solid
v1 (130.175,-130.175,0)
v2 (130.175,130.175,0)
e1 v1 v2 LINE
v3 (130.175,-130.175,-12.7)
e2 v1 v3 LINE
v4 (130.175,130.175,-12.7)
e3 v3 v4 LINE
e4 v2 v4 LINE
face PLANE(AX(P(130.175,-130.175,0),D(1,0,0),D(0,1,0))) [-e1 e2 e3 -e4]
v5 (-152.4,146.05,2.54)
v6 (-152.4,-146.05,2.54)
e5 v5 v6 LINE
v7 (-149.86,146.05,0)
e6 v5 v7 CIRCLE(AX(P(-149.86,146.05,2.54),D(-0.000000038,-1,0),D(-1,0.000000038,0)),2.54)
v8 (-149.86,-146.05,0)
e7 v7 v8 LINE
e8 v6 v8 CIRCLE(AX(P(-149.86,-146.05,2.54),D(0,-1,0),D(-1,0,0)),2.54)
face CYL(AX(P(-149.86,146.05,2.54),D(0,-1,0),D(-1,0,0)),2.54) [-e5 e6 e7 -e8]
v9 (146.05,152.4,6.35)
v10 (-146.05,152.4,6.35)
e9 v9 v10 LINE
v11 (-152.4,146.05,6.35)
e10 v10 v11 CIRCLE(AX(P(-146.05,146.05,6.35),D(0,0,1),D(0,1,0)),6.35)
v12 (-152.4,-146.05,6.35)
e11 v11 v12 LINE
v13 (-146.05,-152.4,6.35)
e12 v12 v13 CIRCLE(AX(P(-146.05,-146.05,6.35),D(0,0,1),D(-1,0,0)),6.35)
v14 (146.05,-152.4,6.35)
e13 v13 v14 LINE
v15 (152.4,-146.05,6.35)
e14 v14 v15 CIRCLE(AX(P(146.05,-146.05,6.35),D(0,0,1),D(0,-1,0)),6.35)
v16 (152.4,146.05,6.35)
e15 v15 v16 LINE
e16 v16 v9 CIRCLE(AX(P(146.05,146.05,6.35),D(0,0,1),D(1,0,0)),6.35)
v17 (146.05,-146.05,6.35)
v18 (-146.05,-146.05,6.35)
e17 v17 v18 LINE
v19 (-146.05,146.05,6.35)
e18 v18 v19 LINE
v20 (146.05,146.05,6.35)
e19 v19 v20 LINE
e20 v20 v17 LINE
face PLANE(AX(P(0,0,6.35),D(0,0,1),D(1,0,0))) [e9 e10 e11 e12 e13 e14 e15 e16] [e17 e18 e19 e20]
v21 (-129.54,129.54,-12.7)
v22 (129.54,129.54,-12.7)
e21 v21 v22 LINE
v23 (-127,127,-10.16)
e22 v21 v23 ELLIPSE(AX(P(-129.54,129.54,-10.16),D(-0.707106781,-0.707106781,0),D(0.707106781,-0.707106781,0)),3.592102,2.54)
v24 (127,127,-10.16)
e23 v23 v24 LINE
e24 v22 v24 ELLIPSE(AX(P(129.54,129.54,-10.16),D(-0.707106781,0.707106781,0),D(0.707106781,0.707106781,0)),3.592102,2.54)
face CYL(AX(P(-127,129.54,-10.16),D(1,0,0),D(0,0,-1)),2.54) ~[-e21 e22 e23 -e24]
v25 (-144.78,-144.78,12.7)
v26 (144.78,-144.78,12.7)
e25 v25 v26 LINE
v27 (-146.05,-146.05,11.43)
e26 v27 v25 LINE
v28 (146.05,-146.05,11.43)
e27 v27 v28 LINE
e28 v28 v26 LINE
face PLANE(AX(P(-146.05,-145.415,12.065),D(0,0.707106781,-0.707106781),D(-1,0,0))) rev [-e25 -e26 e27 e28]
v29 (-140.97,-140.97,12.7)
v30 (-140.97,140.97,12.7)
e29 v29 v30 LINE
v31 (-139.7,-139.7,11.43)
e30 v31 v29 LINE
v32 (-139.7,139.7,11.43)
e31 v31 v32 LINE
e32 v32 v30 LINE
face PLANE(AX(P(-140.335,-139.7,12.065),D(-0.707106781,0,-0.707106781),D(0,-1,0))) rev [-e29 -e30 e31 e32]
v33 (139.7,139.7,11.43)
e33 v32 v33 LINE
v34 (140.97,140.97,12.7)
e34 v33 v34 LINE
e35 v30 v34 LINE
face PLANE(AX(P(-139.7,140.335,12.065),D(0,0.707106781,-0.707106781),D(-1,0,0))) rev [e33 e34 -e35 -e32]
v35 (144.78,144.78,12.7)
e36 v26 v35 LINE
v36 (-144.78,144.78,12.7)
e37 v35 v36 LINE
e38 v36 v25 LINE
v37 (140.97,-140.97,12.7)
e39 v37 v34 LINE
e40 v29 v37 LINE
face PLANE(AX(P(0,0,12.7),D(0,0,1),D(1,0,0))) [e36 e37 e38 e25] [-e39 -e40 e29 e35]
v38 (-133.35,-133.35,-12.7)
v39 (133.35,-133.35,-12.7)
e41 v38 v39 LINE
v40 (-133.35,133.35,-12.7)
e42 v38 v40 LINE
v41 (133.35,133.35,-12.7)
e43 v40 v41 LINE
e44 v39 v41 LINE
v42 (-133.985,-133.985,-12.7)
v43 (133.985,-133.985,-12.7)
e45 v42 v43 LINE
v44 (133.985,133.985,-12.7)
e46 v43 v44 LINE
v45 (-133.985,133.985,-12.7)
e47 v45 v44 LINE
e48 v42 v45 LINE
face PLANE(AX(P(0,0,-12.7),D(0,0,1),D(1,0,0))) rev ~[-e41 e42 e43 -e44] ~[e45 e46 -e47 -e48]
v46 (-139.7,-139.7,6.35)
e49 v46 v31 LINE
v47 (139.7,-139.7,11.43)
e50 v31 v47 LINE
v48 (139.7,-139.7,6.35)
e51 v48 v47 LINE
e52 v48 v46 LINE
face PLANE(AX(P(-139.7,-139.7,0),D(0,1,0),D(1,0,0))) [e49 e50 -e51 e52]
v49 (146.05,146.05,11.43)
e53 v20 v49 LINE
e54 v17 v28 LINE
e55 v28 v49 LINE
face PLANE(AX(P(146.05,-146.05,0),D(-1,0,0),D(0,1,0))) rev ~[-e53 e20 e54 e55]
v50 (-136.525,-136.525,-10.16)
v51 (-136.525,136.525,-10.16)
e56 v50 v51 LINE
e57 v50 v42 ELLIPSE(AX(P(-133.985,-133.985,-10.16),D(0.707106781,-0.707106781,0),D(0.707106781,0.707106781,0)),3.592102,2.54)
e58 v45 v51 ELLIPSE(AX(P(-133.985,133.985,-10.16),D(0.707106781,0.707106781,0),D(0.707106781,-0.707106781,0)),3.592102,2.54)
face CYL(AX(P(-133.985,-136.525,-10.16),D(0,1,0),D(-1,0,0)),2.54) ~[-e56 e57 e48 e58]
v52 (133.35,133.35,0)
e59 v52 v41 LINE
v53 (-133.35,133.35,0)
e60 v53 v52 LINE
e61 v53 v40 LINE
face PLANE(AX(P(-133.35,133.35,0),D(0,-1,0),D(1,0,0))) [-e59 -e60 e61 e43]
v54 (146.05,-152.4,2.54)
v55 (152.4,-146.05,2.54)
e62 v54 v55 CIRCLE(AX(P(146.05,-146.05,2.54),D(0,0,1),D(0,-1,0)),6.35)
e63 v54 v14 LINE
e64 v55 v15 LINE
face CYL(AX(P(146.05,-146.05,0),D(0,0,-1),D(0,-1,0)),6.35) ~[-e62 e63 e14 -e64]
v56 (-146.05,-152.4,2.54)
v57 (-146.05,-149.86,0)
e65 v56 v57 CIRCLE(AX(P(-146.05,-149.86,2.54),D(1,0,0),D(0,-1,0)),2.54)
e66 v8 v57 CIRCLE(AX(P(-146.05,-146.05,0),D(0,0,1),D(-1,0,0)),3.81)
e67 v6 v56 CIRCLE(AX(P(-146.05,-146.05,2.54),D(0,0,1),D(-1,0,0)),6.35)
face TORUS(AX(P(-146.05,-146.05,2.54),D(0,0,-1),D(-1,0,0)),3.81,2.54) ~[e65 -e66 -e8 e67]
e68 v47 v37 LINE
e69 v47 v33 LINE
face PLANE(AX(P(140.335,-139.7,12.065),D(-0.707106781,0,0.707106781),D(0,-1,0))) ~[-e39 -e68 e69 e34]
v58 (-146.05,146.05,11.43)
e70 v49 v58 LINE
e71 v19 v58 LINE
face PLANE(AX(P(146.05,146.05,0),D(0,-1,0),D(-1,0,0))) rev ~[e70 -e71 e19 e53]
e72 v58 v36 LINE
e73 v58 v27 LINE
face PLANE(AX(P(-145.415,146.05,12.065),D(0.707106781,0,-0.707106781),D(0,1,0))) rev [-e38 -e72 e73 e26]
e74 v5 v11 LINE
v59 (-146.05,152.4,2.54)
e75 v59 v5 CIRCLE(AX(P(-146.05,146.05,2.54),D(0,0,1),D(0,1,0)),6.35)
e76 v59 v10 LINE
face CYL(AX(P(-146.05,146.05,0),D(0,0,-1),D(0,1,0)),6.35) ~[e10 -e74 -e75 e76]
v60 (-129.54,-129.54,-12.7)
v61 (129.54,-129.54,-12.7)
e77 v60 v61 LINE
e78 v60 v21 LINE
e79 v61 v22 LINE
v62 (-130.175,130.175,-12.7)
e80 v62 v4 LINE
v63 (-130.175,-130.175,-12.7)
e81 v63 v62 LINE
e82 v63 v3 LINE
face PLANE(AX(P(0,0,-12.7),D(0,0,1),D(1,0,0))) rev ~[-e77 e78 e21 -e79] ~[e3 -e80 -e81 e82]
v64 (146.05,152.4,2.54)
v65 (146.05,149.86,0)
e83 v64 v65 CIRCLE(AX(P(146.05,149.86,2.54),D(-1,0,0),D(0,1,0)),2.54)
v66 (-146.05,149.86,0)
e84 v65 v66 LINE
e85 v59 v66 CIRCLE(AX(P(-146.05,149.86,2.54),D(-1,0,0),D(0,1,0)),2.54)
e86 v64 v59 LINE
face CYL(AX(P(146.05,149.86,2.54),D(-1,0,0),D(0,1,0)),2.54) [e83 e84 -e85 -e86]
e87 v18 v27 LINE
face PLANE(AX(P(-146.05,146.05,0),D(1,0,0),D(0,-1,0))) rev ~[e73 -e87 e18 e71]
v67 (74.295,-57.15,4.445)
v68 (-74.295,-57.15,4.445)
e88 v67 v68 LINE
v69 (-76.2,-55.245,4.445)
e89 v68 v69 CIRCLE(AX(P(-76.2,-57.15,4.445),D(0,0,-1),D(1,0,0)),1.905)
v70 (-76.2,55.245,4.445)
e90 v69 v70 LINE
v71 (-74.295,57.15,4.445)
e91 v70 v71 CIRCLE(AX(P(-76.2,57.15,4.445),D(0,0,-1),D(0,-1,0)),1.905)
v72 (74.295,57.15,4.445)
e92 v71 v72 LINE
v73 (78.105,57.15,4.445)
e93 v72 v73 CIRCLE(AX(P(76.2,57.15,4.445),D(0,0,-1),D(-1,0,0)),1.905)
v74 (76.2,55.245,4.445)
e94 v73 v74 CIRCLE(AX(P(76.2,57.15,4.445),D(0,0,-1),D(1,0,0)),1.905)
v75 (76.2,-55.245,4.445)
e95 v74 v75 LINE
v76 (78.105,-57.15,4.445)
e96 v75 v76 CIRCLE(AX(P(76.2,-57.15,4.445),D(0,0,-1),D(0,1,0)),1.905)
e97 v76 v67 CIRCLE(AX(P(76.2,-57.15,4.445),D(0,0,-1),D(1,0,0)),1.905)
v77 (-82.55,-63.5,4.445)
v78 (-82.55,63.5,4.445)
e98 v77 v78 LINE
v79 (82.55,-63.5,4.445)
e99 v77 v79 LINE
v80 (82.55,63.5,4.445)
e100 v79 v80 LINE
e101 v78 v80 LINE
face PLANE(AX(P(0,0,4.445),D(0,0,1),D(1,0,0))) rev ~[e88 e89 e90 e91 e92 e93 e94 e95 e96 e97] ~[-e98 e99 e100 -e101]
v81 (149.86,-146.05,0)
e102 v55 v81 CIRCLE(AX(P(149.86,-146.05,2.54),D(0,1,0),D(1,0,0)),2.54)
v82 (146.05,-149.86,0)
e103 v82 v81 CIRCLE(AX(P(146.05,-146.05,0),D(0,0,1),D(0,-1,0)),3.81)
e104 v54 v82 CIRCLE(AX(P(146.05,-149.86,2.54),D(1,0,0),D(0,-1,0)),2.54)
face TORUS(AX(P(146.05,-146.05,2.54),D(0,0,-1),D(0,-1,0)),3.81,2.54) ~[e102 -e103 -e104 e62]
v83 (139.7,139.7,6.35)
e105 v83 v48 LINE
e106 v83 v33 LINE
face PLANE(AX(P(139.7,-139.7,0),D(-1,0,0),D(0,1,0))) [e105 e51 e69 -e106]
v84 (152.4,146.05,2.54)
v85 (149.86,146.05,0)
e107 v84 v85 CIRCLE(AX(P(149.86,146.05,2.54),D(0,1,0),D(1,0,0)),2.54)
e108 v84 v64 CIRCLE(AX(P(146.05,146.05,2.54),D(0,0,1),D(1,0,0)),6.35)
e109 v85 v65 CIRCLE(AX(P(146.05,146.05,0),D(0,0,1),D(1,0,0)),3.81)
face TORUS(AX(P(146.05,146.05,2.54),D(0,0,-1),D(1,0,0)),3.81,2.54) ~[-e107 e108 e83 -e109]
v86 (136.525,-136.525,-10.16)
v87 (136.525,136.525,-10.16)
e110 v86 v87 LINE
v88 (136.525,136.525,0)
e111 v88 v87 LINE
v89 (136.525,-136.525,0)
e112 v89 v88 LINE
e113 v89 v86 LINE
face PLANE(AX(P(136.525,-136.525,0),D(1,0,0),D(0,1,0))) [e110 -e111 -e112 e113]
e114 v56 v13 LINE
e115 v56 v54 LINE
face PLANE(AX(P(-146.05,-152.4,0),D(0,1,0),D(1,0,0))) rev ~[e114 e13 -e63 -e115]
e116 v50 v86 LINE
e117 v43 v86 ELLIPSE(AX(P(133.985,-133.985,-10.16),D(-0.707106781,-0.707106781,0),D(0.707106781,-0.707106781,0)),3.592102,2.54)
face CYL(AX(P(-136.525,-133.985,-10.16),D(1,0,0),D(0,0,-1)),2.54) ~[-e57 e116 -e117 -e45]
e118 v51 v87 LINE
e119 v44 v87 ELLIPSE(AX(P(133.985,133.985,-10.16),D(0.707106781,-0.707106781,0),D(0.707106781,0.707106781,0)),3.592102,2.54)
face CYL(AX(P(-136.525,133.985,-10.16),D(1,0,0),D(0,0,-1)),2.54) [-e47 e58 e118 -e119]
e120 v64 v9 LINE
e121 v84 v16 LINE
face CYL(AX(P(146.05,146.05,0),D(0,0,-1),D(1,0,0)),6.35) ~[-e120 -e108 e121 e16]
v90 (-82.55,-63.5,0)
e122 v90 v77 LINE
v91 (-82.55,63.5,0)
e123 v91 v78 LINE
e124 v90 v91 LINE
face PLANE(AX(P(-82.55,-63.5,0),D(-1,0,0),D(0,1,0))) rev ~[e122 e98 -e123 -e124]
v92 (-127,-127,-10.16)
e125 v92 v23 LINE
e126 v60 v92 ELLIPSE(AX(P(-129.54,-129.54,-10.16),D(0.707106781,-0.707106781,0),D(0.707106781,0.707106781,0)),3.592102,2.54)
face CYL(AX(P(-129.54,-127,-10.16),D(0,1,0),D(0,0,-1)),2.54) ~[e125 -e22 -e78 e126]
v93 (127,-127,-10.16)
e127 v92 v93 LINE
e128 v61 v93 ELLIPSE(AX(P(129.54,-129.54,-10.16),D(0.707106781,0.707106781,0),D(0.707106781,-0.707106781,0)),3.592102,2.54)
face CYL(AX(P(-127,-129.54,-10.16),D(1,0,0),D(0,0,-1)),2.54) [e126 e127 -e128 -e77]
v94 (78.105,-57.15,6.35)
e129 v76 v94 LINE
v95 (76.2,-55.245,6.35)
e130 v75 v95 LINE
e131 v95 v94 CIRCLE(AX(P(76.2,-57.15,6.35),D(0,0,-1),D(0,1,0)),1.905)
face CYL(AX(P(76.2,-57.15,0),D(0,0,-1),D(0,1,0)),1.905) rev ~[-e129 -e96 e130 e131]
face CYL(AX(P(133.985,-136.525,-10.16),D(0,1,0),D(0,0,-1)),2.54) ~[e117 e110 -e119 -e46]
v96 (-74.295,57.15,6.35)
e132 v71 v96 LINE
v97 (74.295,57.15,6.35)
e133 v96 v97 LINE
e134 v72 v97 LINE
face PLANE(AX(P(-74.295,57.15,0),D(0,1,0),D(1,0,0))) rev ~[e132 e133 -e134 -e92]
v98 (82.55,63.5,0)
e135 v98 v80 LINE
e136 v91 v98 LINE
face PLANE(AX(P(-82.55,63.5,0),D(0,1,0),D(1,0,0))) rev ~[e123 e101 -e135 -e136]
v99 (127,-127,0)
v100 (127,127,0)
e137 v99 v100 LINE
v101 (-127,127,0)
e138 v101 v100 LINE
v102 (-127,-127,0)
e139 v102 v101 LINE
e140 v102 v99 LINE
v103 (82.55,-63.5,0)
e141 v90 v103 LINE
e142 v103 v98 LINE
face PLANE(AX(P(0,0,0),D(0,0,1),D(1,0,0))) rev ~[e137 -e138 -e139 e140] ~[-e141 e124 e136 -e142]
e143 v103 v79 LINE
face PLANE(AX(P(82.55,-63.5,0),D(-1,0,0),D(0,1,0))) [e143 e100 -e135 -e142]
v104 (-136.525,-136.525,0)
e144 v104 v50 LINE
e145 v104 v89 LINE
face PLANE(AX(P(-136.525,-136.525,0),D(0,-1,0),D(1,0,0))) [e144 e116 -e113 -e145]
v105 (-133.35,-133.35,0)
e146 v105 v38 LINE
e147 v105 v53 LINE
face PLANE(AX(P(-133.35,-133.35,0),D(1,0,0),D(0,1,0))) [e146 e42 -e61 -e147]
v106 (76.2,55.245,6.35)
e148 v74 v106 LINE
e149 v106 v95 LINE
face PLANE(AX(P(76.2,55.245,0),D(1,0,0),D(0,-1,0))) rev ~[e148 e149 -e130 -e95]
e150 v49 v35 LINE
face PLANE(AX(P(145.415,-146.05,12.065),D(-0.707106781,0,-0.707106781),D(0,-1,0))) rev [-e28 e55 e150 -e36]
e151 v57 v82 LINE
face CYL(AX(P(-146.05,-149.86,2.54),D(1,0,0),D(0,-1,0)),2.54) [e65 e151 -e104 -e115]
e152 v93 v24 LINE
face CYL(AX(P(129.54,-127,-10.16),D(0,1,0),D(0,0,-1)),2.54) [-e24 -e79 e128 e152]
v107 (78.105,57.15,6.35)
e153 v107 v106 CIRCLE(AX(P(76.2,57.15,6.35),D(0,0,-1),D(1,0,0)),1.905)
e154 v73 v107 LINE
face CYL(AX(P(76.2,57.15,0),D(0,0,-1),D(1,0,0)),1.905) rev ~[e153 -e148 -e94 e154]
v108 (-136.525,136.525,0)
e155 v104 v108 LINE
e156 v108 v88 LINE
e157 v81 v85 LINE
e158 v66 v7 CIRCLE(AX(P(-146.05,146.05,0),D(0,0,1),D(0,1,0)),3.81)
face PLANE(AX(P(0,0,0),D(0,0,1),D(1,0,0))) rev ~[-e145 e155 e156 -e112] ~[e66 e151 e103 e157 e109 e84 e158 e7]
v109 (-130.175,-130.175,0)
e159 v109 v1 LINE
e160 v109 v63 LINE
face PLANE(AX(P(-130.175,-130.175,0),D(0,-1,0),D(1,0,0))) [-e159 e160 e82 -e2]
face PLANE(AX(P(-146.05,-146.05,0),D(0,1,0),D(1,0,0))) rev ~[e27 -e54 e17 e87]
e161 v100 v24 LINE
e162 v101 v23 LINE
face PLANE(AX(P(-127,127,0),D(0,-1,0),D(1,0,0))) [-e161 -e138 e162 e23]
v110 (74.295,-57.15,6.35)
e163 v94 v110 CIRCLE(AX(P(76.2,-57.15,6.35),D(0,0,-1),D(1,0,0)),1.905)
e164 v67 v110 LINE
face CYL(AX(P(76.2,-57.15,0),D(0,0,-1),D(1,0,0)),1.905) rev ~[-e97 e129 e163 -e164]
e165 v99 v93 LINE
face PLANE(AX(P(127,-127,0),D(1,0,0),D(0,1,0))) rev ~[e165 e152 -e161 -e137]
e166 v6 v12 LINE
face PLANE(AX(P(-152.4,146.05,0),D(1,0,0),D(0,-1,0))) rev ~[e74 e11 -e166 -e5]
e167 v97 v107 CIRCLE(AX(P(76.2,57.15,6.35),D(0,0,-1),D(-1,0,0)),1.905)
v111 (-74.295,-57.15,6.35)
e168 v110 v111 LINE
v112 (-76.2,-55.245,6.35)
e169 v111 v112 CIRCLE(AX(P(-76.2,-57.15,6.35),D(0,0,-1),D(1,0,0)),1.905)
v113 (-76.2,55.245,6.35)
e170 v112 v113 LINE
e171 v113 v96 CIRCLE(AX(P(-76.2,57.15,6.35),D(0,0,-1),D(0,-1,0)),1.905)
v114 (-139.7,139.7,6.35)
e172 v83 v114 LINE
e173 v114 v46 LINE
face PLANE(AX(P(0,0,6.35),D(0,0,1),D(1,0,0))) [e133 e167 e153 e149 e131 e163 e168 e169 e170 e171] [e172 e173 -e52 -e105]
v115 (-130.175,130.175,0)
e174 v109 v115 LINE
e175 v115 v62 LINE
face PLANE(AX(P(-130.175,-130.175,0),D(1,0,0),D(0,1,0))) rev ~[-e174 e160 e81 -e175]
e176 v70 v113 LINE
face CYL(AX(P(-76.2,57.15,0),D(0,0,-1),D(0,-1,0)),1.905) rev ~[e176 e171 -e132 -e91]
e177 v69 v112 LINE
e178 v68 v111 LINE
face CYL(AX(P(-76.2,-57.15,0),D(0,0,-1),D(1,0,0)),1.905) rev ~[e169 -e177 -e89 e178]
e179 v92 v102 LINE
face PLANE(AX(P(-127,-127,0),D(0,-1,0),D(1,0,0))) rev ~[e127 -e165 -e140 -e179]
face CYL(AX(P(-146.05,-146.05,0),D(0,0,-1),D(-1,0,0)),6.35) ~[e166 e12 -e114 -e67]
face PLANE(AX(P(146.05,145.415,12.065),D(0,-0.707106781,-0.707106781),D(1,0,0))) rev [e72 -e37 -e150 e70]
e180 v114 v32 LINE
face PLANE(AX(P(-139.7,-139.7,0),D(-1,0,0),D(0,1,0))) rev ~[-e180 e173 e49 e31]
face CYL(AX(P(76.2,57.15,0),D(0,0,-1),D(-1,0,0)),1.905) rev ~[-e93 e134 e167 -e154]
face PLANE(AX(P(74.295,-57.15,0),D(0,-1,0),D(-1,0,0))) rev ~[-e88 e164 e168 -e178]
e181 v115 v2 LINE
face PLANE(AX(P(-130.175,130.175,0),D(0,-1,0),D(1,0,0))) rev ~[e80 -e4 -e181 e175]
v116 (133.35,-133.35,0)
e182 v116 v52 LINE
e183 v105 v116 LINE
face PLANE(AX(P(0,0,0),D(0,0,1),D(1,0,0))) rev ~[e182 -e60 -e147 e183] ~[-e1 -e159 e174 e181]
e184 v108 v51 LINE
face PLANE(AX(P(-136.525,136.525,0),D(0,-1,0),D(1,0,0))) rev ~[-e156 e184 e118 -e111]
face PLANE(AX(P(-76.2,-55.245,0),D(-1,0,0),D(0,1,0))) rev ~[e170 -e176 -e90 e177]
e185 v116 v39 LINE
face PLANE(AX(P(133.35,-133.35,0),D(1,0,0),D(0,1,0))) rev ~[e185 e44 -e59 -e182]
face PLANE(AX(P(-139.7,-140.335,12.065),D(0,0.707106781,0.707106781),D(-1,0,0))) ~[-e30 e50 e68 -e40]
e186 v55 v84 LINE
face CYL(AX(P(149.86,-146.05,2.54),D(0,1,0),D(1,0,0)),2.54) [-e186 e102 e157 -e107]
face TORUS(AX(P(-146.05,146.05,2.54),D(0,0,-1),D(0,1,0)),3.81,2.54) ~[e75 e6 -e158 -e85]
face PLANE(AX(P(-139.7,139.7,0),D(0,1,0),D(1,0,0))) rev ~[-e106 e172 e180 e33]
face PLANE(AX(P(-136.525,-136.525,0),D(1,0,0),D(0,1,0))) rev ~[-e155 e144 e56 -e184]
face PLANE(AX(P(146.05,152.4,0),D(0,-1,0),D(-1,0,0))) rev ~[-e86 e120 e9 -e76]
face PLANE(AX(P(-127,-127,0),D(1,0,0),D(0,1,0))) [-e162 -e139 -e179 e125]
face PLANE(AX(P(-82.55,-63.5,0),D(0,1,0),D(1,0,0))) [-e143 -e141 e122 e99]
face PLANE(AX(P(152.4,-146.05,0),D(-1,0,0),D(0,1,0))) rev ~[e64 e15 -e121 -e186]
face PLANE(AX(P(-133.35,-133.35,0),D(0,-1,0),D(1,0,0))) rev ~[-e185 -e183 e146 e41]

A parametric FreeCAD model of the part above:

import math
import FreeCAD as App
import Part
import Sketcher

V = App.Vector
Q = App.Units.Quantity


def edges_at(feature, points):
    """Names of the edges that pass closest to the given points."""
    edges = feature.Shape.Edges
    near = lambda p: min(range(len(edges)), key=lambda i: edges[i].distToShape(Part.Vertex(*p))[0])
    return sorted({f"Edge{near(p) + 1}" for p in points})

doc = App.newDocument("Part")
body = doc.addObject("PartDesign::Body", "Body")

# Sketch on XY plane
sketch1 = body.newObject("Sketcher::SketchObject", "Sketch")
sketch1.AttachmentSupport = (doc.getObject("XY_Plane"), [""])
sketch1.MapMode = "FlatFace"
sketch1.addGeometry([
    Part.LineSegment(V(-146.05, -152.4, 0), V(146.05, -152.4, 0)),  # 0
    Part.ArcOfCircle(Part.Circle(V(146.05, -146.05, 0), V(0, 0, 1), 6.35), math.radians(-90), math.radians(0)),  # 1
    Part.LineSegment(V(152.4, -146.05, 0), V(152.4, 146.05, 0)),  # 2
    Part.ArcOfCircle(Part.Circle(V(146.05, 146.05, 0), V(0, 0, 1), 6.35), math.radians(0), math.radians(90)),  # 3
    Part.LineSegment(V(146.05, 152.4, 0), V(-146.05, 152.4, 0)),  # 4
    Part.ArcOfCircle(Part.Circle(V(-146.05, 146.05, 0), V(0, 0, 1), 6.35), math.radians(90), math.radians(179.999998)),  # 5
    Part.LineSegment(V(-152.4, 146.05, 0), V(-152.4, -146.05, 0)),  # 6
    Part.ArcOfCircle(Part.Circle(V(-146.05, -146.05, 0), V(0, 0, 1), 6.35), math.radians(180), math.radians(270)),  # 7
    Part.LineSegment(V(127, -127, 0), V(-127, -127, 0)),  # 8
    Part.LineSegment(V(-127, -127, 0), V(-127, 127, 0)),  # 9
    Part.LineSegment(V(-127, 127, 0), V(127, 127, 0)),  # 10
    Part.LineSegment(V(127, 127, 0), V(127, -127, 0)),  # 11
], False)
sketch1.addConstraint([
    Sketcher.Constraint("Tangent", 0, 2, 1, 1),
    Sketcher.Constraint("Tangent", 1, 2, 2, 1),
    Sketcher.Constraint("Tangent", 2, 2, 3, 1),
    Sketcher.Constraint("Tangent", 3, 2, 4, 1),
    Sketcher.Constraint("Tangent", 4, 2, 5, 1),
    Sketcher.Constraint("Tangent", 5, 2, 6, 1),
    Sketcher.Constraint("Tangent", 6, 2, 7, 1),
    Sketcher.Constraint("Tangent", 7, 2, 0, 1),
    Sketcher.Constraint("Coincident", 8, 2, 9, 1),
    Sketcher.Constraint("Coincident", 9, 2, 10, 1),
    Sketcher.Constraint("Coincident", 10, 2, 11, 1),
    Sketcher.Constraint("Coincident", 11, 2, 8, 1),
    Sketcher.Constraint("Horizontal", 0),
    Sketcher.Constraint("Vertical", 2),
    Sketcher.Constraint("Horizontal", 4),
    Sketcher.Constraint("Vertical", 6),
    Sketcher.Constraint("Horizontal", 8),
    Sketcher.Constraint("Vertical", 9),
    Sketcher.Constraint("Horizontal", 10),
    Sketcher.Constraint("Vertical", 11),
    Sketcher.Constraint("Equal", 1, 3),
    Sketcher.Constraint("Equal", 3, 5),
    Sketcher.Constraint("Equal", 5, 7),
    Sketcher.Constraint("Symmetric", 1, 3, 5, 3, -1, 1),
    Sketcher.Constraint("Symmetric", 8, 2, 10, 2, -1, 1),
    Sketcher.Constraint("Equal", 4, 2),
    Sketcher.Constraint("Equal", 10, 9),
    Sketcher.Constraint("DistanceX", 8, 2, 8, 1, Q("10 in")),
    Sketcher.Constraint("Radius", 1, Q("0.25 in")),
    Sketcher.Constraint("DistanceX", 0, 1, 0, 2, Q("11.5 in")),
])
pad1 = body.newObject("PartDesign::Pad", "Pad")
pad1.Profile = sketch1
pad1.Length = Q("0.25 in")

# Sketch on XY plane
sketch2 = body.newObject("Sketcher::SketchObject", "Sketch001")
sketch2.AttachmentSupport = (doc.getObject("XY_Plane"), [""])
sketch2.MapMode = "FlatFace"
sketch2.addGeometry([
    Part.LineSegment(V(-146.05, 146.05, 0), V(-146.05, -146.05, 0)),  # 0
    Part.LineSegment(V(-146.05, -146.05, 0), V(146.05, -146.05, 0)),  # 1
    Part.LineSegment(V(146.05, -146.05, 0), V(146.05, 146.05, 0)),  # 2
    Part.LineSegment(V(146.05, 146.05, 0), V(-146.05, 146.05, 0)),  # 3
    Part.LineSegment(V(139.7, -139.7, 0), V(-139.7, -139.7, 0)),  # 4
    Part.LineSegment(V(-139.7, -139.7, 0), V(-139.7, 139.7, 0)),  # 5
    Part.LineSegment(V(-139.7, 139.7, 0), V(139.7, 139.7, 0)),  # 6
    Part.LineSegment(V(139.7, 139.7, 0), V(139.7, -139.7, 0)),  # 7
], False)
sketch2.addConstraint([
    Sketcher.Constraint("Coincident", 0, 2, 1, 1),
    Sketcher.Constraint("Coincident", 1, 2, 2, 1),
    Sketcher.Constraint("Coincident", 2, 2, 3, 1),
    Sketcher.Constraint("Coincident", 3, 2, 0, 1),
    Sketcher.Constraint("Coincident", 4, 2, 5, 1),
    Sketcher.Constraint("Coincident", 5, 2, 6, 1),
    Sketcher.Constraint("Coincident", 6, 2, 7, 1),
    Sketcher.Constraint("Coincident", 7, 2, 4, 1),
    Sketcher.Constraint("Vertical", 0),
    Sketcher.Constraint("Horizontal", 1),
    Sketcher.Constraint("Vertical", 2),
    Sketcher.Constraint("Horizontal", 3),
    Sketcher.Constraint("Horizontal", 4),
    Sketcher.Constraint("Vertical", 5),
    Sketcher.Constraint("Horizontal", 6),
    Sketcher.Constraint("Vertical", 7),
    Sketcher.Constraint("Symmetric", 0, 2, 2, 2, -1, 1),
    Sketcher.Constraint("Symmetric", 4, 2, 6, 2, -1, 1),
    Sketcher.Constraint("Equal", 3, 0),
    Sketcher.Constraint("Equal", 6, 5),
    Sketcher.Constraint("DistanceX", 4, 2, 4, 1, Q("11 in")),
    Sketcher.Constraint("DistanceX", 1, 1, 1, 2, Q("11.5 in")),
])
pad2 = body.newObject("PartDesign::Pad", "Pad001")
pad2.Profile = sketch2
pad2.Length = Q("0.5 in")
doc.recompute()

chamfer = body.newObject("PartDesign::Chamfer", "Chamfer")
chamfer.Base = (pad2, edges_at(pad2, [
    (146.05, 0, 12.7),
    (139.7, 0, 12.7),
    (0, 139.7, 12.7),
    (0, 146.05, 12.7),
    (-139.7, 0, 12.7),
    (-146.05, 0, 12.7),
    (0, -139.7, 12.7),
    (0, -146.05, 12.7),
]))
chamfer.Size = Q("0.05 in")
doc.recompute()

fillet = body.newObject("PartDesign::Fillet", "Fillet")
fillet.Base = (chamfer, edges_at(chamfer, [
    (0, -152.4, 0),
    (-152.4, 0, 0),
    (-150.54, -150.54, 0),
    (152.4, 0, 0),
    (150.54, -150.54, 0),
    (0, 152.4, 0),
    (-150.54, 150.54, 0),
    (150.54, 150.54, 0),
]))
fillet.Radius = Q("0.1 in")

# Sketch on XY plane
sketch3 = body.newObject("Sketcher::SketchObject", "Sketch002")
sketch3.AttachmentSupport = (doc.getObject("XY_Plane"), [""])
sketch3.MapMode = "FlatFace"
sketch3.addGeometry([
    Part.LineSegment(V(-136.525, 136.525, 0), V(-136.525, -136.525, 0)),  # 0
    Part.LineSegment(V(-136.525, -136.525, 0), V(136.525, -136.525, 0)),  # 1
    Part.LineSegment(V(136.525, -136.525, 0), V(136.525, 136.525, 0)),  # 2
    Part.LineSegment(V(136.525, 136.525, 0), V(-136.525, 136.525, 0)),  # 3
    Part.LineSegment(V(133.35, -133.35, 0), V(-133.35, -133.35, 0)),  # 4
    Part.LineSegment(V(-133.35, -133.35, 0), V(-133.35, 133.35, 0)),  # 5
    Part.LineSegment(V(-133.35, 133.35, 0), V(133.35, 133.35, 0)),  # 6
    Part.LineSegment(V(133.35, 133.35, 0), V(133.35, -133.35, 0)),  # 7
    Part.LineSegment(V(-130.175, 130.175, 0), V(-130.175, -130.175, 0)),  # 8
    Part.LineSegment(V(-130.175, -130.175, 0), V(130.175, -130.175, 0)),  # 9
    Part.LineSegment(V(130.175, -130.175, 0), V(130.175, 130.175, 0)),  # 10
    Part.LineSegment(V(130.175, 130.175, 0), V(-130.175, 130.175, 0)),  # 11
    Part.LineSegment(V(127, -127, 0), V(-127, -127, 0)),  # 12
    Part.LineSegment(V(-127, -127, 0), V(-127, 127, 0)),  # 13
    Part.LineSegment(V(-127, 127, 0), V(127, 127, 0)),  # 14
    Part.LineSegment(V(127, 127, 0), V(127, -127, 0)),  # 15
], False)
sketch3.addConstraint([
    Sketcher.Constraint("Coincident", 0, 2, 1, 1),
    Sketcher.Constraint("Coincident", 1, 2, 2, 1),
    Sketcher.Constraint("Coincident", 2, 2, 3, 1),
    Sketcher.Constraint("Coincident", 3, 2, 0, 1),
    Sketcher.Constraint("Coincident", 4, 2, 5, 1),
    Sketcher.Constraint("Coincident", 5, 2, 6, 1),
    Sketcher.Constraint("Coincident", 6, 2, 7, 1),
    Sketcher.Constraint("Coincident", 7, 2, 4, 1),
    Sketcher.Constraint("Coincident", 8, 2, 9, 1),
    Sketcher.Constraint("Coincident", 9, 2, 10, 1),
    Sketcher.Constraint("Coincident", 10, 2, 11, 1),
    Sketcher.Constraint("Coincident", 11, 2, 8, 1),
    Sketcher.Constraint("Coincident", 12, 2, 13, 1),
    Sketcher.Constraint("Coincident", 13, 2, 14, 1),
    Sketcher.Constraint("Coincident", 14, 2, 15, 1),
    Sketcher.Constraint("Coincident", 15, 2, 12, 1),
    Sketcher.Constraint("Vertical", 0),
    Sketcher.Constraint("Horizontal", 1),
    Sketcher.Constraint("Vertical", 2),
    Sketcher.Constraint("Horizontal", 3),
    Sketcher.Constraint("Horizontal", 4),
    Sketcher.Constraint("Vertical", 5),
    Sketcher.Constraint("Horizontal", 6),
    Sketcher.Constraint("Vertical", 7),
    Sketcher.Constraint("Vertical", 8),
    Sketcher.Constraint("Horizontal", 9),
    Sketcher.Constraint("Vertical", 10),
    Sketcher.Constraint("Horizontal", 11),
    Sketcher.Constraint("Horizontal", 12),
    Sketcher.Constraint("Vertical", 13),
    Sketcher.Constraint("Horizontal", 14),
    Sketcher.Constraint("Vertical", 15),
    Sketcher.Constraint("Symmetric", 0, 2, 2, 2, -1, 1),
    Sketcher.Constraint("Symmetric", 4, 2, 6, 2, -1, 1),
    Sketcher.Constraint("Symmetric", 8, 2, 10, 2, -1, 1),
    Sketcher.Constraint("Symmetric", 12, 2, 14, 2, -1, 1),
    Sketcher.Constraint("Equal", 3, 0),
    Sketcher.Constraint("Equal", 6, 5),
    Sketcher.Constraint("Equal", 11, 8),
    Sketcher.Constraint("Equal", 14, 13),
    Sketcher.Constraint("DistanceX", 12, 2, 12, 1, Q("10 in")),
    Sketcher.Constraint("DistanceX", 4, 2, 4, 1, Q("10.5 in")),
    Sketcher.Constraint("DistanceX", 1, 1, 1, 2, Q("10.75 in")),
    Sketcher.Constraint("DistanceX", 9, 1, 9, 2, Q("10.25 in")),
])
pad3 = body.newObject("PartDesign::Pad", "Pad002")
pad3.Profile = sketch3
pad3.Length = Q("0.5 in")
pad3.Reversed = True
doc.recompute()

fillet2 = body.newObject("PartDesign::Fillet", "Fillet001")
fillet2.Base = (pad3, edges_at(pad3, [
    (0, 136.525, -12.7),
    (-136.525, 0, -12.7),
    (0, -136.525, -12.7),
    (136.525, 0, -12.7),
    (0, 127, -12.7),
    (-127, 0, -12.7),
    (0, -127, -12.7),
    (127, 0, -12.7),
]))
fillet2.Radius = Q("0.1 in")

# Sketch on XY plane
sketch4 = body.newObject("Sketcher::SketchObject", "Sketch003")
sketch4.AttachmentSupport = (doc.getObject("XY_Plane"), [""])
sketch4.MapMode = "FlatFace"
sketch4.addGeometry([
    Part.LineSegment(V(-127, 127, 0), V(-127, -127, 0)),  # 0
    Part.LineSegment(V(-127, -127, 0), V(127, -127, 0)),  # 1
    Part.LineSegment(V(127, -127, 0), V(127, 127, 0)),  # 2
    Part.LineSegment(V(127, 127, 0), V(-127, 127, 0)),  # 3
    Part.LineSegment(V(-76.2, -55.245, 0), V(-76.2, 55.245, 0)),  # 4
    Part.ArcOfCircle(Part.Circle(V(-76.2, 57.15, 0), V(0, 0, 1), 1.905), math.radians(0), math.radians(270)),  # 5
    Part.LineSegment(V(-74.295, 57.15, 0), V(74.295, 57.15, 0)),  # 6
    Part.ArcOfCircle(Part.Circle(V(76.2, 57.15, 0), V(0, 0, 1), 1.905), math.radians(0), math.radians(180)),  # 7
    Part.ArcOfCircle(Part.Circle(V(76.2, 57.15, 0), V(0, 0, 1), 1.905), math.radians(-90), math.radians(0)),  # 8
    Part.LineSegment(V(76.2, 55.245, 0), V(76.2, -55.245, 0)),  # 9
    Part.ArcOfCircle(Part.Circle(V(76.2, -57.15, 0), V(0, 0, 1), 1.905), math.radians(0), math.radians(90)),  # 10
    Part.ArcOfCircle(Part.Circle(V(76.2, -57.15, 0), V(0, 0, 1), 1.905), math.radians(180), math.radians(360)),  # 11
    Part.LineSegment(V(74.295, -57.15, 0), V(-74.295, -57.15, 0)),  # 12
    Part.ArcOfCircle(Part.Circle(V(-76.2, -57.15, 0), V(0, 0, 1), 1.905), math.radians(90), math.radians(360)),  # 13
], False)
sketch4.addConstraint([
    Sketcher.Constraint("Coincident", 0, 2, 1, 1),
    Sketcher.Constraint("Coincident", 1, 2, 2, 1),
    Sketcher.Constraint("Coincident", 2, 2, 3, 1),
    Sketcher.Constraint("Coincident", 3, 2, 0, 1),
    Sketcher.Constraint("Coincident", 4, 2, 5, 2),
    Sketcher.Constraint("Coincident", 5, 1, 6, 1),
    Sketcher.Constraint("Coincident", 6, 2, 7, 2),
    Sketcher.Constraint("Tangent", 7, 1, 8, 2),
    Sketcher.Constraint("Coincident", 8, 1, 9, 1),
    Sketcher.Constraint("Coincident", 9, 2, 10, 2),
    Sketcher.Constraint("Tangent", 10, 1, 11, 2),
    Sketcher.Constraint("Coincident", 11, 1, 12, 1),
    Sketcher.Constraint("Coincident", 12, 2, 13, 2),
    Sketcher.Constraint("Coincident", 13, 1, 4, 1),
    Sketcher.Constraint("Vertical", 0),
    Sketcher.Constraint("Horizontal", 1),
    Sketcher.Constraint("Vertical", 2),
    Sketcher.Constraint("Horizontal", 3),
    Sketcher.Constraint("Vertical", 4),
    Sketcher.Constraint("Horizontal", 6),
    Sketcher.Constraint("Vertical", 9),
    Sketcher.Constraint("Horizontal", 12),
    Sketcher.Constraint("Equal", 5, 7),
    Sketcher.Constraint("Equal", 7, 8),
    Sketcher.Constraint("Equal", 8, 10),
    Sketcher.Constraint("Equal", 10, 11),
    Sketcher.Constraint("Equal", 11, 13),
    Sketcher.Constraint("Symmetric", 5, 3, 10, 3, -1, 1),
    Sketcher.Constraint("Symmetric", 7, 3, 13, 3, -1, 1),
    Sketcher.Constraint("Symmetric", 0, 2, 2, 2, -1, 1),
    Sketcher.Constraint("Symmetric", 5, 3, 7, 3, -2),
    Sketcher.Constraint("Horizontal", 8, 3, 5, 1),
    Sketcher.Constraint("Horizontal", 6, 2, 7, 1),
    Sketcher.Constraint("Horizontal", 13, 3, 10, 1),
    Sketcher.Constraint("Horizontal", 10, 1, 11, 1),
    Sketcher.Constraint("Vertical", 13, 3, 4, 2),
    Sketcher.Constraint("Vertical", 11, 3, 8, 1),
    Sketcher.Constraint("Equal", 3, 0),
    Sketcher.Constraint("DistanceX", 1, 1, 1, 2, Q("10 in")),
    Sketcher.Constraint("DistanceX", 5, 3, -1, 1, Q("3 in")),
    Sketcher.Constraint("Radius", 5, Q("0.075 in")),
    Sketcher.Constraint("DistanceY", 4, 1, 4, 2, Q("4.35 in")),
])
pad4 = body.newObject("PartDesign::Pad", "Pad003")
pad4.Profile = sketch4
pad4.Length = Q("0.25 in")

# Sketch on XY plane
sketch5 = body.newObject("Sketcher::SketchObject", "Sketch004")
sketch5.AttachmentSupport = (doc.getObject("XY_Plane"), [""])
sketch5.MapMode = "FlatFace"
sketch5.addGeometry([
    Part.LineSegment(V(-82.55, 63.5, 0), V(-82.55, -63.5, 0)),  # 0
    Part.LineSegment(V(-82.55, -63.5, 0), V(82.55, -63.5, 0)),  # 1
    Part.LineSegment(V(82.55, -63.5, 0), V(82.55, 63.5, 0)),  # 2
    Part.LineSegment(V(82.55, 63.5, 0), V(-82.55, 63.5, 0)),  # 3
    Part.LineSegment(V(-76.2, -55.245, 0), V(-76.2, 55.245, 0)),  # 4
    Part.ArcOfCircle(Part.Circle(V(-76.2, 57.15, 0), V(0, 0, 1), 1.905), math.radians(0), math.radians(270)),  # 5
    Part.LineSegment(V(-74.295, 57.15, 0), V(74.295, 57.15, 0)),  # 6
    Part.ArcOfCircle(Part.Circle(V(76.2, 57.15, 0), V(0, 0, 1), 1.905), math.radians(0), math.radians(180)),  # 7
    Part.ArcOfCircle(Part.Circle(V(76.2, 57.15, 0), V(0, 0, 1), 1.905), math.radians(-90), math.radians(0)),  # 8
    Part.LineSegment(V(76.2, 55.245, 0), V(76.2, -55.245, 0)),  # 9
    Part.ArcOfCircle(Part.Circle(V(76.2, -57.15, 0), V(0, 0, 1), 1.905), math.radians(0), math.radians(90)),  # 10
    Part.ArcOfCircle(Part.Circle(V(76.2, -57.15, 0), V(0, 0, 1), 1.905), math.radians(180), math.radians(360)),  # 11
    Part.LineSegment(V(74.295, -57.15, 0), V(-74.295, -57.15, 0)),  # 12
    Part.ArcOfCircle(Part.Circle(V(-76.2, -57.15, 0), V(0, 0, 1), 1.905), math.radians(90), math.radians(360)),  # 13
], False)
sketch5.addConstraint([
    Sketcher.Constraint("Coincident", 0, 2, 1, 1),
    Sketcher.Constraint("Coincident", 1, 2, 2, 1),
    Sketcher.Constraint("Coincident", 2, 2, 3, 1),
    Sketcher.Constraint("Coincident", 3, 2, 0, 1),
    Sketcher.Constraint("Coincident", 4, 2, 5, 2),
    Sketcher.Constraint("Coincident", 5, 1, 6, 1),
    Sketcher.Constraint("Coincident", 6, 2, 7, 2),
    Sketcher.Constraint("Tangent", 7, 1, 8, 2),
    Sketcher.Constraint("Coincident", 8, 1, 9, 1),
    Sketcher.Constraint("Coincident", 9, 2, 10, 2),
    Sketcher.Constraint("Tangent", 10, 1, 11, 2),
    Sketcher.Constraint("Coincident", 11, 1, 12, 1),
    Sketcher.Constraint("Coincident", 12, 2, 13, 2),
    Sketcher.Constraint("Coincident", 13, 1, 4, 1),
    Sketcher.Constraint("Vertical", 0),
    Sketcher.Constraint("Horizontal", 1),
    Sketcher.Constraint("Vertical", 2),
    Sketcher.Constraint("Horizontal", 3),
    Sketcher.Constraint("Vertical", 4),
    Sketcher.Constraint("Horizontal", 6),
    Sketcher.Constraint("Vertical", 9),
    Sketcher.Constraint("Horizontal", 12),
    Sketcher.Constraint("Equal", 5, 7),
    Sketcher.Constraint("Equal", 7, 8),
    Sketcher.Constraint("Equal", 8, 10),
    Sketcher.Constraint("Equal", 10, 11),
    Sketcher.Constraint("Equal", 11, 13),
    Sketcher.Constraint("Symmetric", 5, 3, 10, 3, -1, 1),
    Sketcher.Constraint("Symmetric", 7, 3, 13, 3, -1, 1),
    Sketcher.Constraint("Symmetric", 0, 2, 2, 2, -1, 1),
    Sketcher.Constraint("Symmetric", 5, 3, 7, 3, -2),
    Sketcher.Constraint("Horizontal", 8, 3, 5, 1),
    Sketcher.Constraint("Horizontal", 6, 2, 7, 1),
    Sketcher.Constraint("Horizontal", 13, 3, 10, 1),
    Sketcher.Constraint("Horizontal", 10, 1, 11, 1),
    Sketcher.Constraint("Vertical", 13, 3, 4, 2),
    Sketcher.Constraint("Vertical", 11, 3, 8, 1),
    Sketcher.Constraint("DistanceY", 0, 2, 0, 1, Q("5 in")),
    Sketcher.Constraint("DistanceX", 1, 1, 1, 2, Q("6.5 in")),
    Sketcher.Constraint("DistanceX", 5, 3, -1, 1, Q("3 in")),
    Sketcher.Constraint("Radius", 5, Q("0.075 in")),
    Sketcher.Constraint("DistanceY", 4, 1, 4, 2, Q("4.35 in")),
])
pocket1 = body.newObject("PartDesign::Pocket", "Pocket")
pocket1.Profile = sketch5
pocket1.Length = Q("0.175 in")
pocket1.Reversed = True

doc.recompute()
